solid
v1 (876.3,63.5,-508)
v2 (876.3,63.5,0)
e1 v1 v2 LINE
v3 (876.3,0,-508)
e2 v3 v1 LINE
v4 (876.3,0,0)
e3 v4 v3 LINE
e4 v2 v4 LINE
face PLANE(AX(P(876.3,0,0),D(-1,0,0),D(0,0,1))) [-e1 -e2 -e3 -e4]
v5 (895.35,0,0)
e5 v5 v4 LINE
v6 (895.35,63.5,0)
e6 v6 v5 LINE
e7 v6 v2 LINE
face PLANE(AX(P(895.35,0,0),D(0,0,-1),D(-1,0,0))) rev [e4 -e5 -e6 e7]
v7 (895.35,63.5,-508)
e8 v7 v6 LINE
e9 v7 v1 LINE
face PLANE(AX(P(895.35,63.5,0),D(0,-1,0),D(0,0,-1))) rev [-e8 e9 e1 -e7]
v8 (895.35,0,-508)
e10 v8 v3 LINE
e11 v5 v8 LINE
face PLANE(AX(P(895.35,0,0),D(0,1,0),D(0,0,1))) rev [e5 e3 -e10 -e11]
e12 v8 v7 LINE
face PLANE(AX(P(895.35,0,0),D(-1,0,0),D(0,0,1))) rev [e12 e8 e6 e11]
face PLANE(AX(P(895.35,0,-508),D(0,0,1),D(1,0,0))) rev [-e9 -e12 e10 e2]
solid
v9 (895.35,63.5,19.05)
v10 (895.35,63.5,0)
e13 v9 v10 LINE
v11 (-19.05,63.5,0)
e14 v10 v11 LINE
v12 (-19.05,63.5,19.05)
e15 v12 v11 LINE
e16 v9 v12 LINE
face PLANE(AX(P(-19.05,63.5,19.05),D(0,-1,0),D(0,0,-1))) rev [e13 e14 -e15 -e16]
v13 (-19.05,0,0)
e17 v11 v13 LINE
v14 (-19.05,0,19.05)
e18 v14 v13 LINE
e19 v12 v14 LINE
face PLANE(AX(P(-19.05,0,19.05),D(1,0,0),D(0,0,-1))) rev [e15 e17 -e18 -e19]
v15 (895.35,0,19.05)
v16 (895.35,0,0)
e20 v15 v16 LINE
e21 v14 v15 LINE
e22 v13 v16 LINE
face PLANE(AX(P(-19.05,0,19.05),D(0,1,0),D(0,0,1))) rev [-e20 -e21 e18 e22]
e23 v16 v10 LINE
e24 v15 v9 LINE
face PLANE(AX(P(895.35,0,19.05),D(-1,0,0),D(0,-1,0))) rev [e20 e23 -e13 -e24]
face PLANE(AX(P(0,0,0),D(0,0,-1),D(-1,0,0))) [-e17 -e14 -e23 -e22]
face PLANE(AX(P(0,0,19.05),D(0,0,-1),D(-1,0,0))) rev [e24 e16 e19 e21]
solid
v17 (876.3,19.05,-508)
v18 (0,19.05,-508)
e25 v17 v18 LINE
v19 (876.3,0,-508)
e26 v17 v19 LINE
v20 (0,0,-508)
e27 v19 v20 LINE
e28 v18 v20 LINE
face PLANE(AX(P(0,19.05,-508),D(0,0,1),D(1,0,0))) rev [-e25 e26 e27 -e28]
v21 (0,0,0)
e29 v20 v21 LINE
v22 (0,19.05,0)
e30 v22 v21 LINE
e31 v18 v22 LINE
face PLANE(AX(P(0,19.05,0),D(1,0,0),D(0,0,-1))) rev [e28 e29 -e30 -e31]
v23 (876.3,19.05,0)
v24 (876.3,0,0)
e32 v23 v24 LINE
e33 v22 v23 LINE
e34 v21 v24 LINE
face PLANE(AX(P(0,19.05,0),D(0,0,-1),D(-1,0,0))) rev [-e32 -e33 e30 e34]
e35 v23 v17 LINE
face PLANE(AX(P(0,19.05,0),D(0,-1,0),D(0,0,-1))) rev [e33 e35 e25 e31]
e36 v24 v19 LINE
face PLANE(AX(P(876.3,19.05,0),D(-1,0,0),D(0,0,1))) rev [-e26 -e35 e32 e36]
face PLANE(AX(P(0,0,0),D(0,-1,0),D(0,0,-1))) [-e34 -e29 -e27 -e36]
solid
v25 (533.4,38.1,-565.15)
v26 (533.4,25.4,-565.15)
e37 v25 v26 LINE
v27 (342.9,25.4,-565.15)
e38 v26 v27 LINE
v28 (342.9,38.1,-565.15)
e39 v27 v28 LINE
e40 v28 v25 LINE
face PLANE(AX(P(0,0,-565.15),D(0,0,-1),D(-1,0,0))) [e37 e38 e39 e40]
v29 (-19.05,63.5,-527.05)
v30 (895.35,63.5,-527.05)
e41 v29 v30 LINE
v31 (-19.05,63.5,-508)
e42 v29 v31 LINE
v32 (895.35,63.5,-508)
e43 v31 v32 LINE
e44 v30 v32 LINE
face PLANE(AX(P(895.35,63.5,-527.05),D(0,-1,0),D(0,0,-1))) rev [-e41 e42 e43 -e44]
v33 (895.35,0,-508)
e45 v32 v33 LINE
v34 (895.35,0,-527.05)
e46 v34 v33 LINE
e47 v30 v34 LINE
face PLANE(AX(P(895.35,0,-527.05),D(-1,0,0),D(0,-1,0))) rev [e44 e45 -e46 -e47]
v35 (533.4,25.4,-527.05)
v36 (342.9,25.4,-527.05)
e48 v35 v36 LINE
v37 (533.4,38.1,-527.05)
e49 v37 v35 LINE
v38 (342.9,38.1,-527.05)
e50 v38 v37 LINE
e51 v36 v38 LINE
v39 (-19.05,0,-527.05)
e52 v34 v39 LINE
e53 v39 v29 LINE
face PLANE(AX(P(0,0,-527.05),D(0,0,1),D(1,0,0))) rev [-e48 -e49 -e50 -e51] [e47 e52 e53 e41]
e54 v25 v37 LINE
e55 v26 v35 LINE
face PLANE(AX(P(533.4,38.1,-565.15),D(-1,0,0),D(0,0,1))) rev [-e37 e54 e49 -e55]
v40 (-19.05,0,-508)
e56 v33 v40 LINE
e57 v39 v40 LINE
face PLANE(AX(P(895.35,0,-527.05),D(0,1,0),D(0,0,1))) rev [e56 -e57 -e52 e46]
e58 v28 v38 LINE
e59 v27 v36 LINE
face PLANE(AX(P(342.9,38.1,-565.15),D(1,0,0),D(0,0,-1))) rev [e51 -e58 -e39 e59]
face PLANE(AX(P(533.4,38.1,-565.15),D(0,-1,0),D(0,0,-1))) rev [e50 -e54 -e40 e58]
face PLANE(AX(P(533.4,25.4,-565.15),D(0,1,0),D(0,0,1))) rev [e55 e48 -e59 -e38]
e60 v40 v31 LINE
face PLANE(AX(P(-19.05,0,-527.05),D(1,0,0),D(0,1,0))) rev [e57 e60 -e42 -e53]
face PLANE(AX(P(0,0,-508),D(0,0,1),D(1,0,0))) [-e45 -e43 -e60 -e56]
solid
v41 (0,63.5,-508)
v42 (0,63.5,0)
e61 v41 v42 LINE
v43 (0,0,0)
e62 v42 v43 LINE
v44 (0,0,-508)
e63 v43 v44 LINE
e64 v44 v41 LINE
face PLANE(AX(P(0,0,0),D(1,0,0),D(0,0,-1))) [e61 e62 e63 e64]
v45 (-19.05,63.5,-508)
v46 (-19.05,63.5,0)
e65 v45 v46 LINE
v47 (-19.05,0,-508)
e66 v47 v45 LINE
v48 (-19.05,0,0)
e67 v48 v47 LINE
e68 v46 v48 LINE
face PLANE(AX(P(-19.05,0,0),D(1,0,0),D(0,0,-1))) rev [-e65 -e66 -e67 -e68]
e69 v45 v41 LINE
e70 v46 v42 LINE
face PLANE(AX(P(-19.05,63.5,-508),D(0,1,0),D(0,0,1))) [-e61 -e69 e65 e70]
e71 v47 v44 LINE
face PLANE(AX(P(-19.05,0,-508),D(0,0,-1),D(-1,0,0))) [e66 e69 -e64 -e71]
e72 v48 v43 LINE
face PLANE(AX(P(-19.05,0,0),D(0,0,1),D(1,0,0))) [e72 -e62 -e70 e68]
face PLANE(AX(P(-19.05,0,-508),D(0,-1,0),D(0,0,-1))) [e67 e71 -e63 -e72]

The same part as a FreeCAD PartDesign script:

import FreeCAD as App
import Part
import Sketcher
Q = App.Units.Quantity

doc = App.newDocument("Part")
body = doc.addObject("PartDesign::Body", "Body")

# Sketch on XZ plane
sketch1 = body.newObject("Sketcher::SketchObject", "Sketch")
sketch1.AttachmentSupport = (doc.getObject("XZ_Plane"), [""])
sketch1.MapMode = "FlatFace"
sketch1.addGeometry(Part.LineSegment(App.Vector(0, -508, 0), App.Vector(0, 0, 0)), False)
sketch1.addGeometry(Part.LineSegment(App.Vector(0, 0, 0), App.Vector(876, 0, 0)), False)
sketch1.addGeometry(Part.LineSegment(App.Vector(876, 0, 0), App.Vector(876, -508, 0)), False)
sketch1.addGeometry(Part.LineSegment(App.Vector(876, -508, 0), App.Vector(0, -508, 0)), False)
sketch1.addConstraint(Sketcher.Constraint("Coincident", 0, 2, 1, 1))
sketch1.addConstraint(Sketcher.Constraint("Coincident", 1, 2, 2, 1))
sketch1.addConstraint(Sketcher.Constraint("Coincident", 2, 2, 3, 1))
sketch1.addConstraint(Sketcher.Constraint("Coincident", 3, 2, 0, 1))
sketch1.addConstraint(Sketcher.Constraint("Vertical", 0))
sketch1.addConstraint(Sketcher.Constraint("Horizontal", 1))
sketch1.addConstraint(Sketcher.Constraint("Vertical", 2))
sketch1.addConstraint(Sketcher.Constraint("Horizontal", 3))
sketch1.addConstraint(Sketcher.Constraint("Coincident", 0, 2, -1, 1))
sketch1.addConstraint(Sketcher.Constraint("DistanceY", 0, 1, 0, 2, Q("20 in")))
sketch1.addConstraint(Sketcher.Constraint("DistanceX", 1, 1, 1, 2, Q("34.5 in")))
pad1 = body.newObject("PartDesign::Pad", "Pad")
pad1.Profile = sketch1
pad1.Length = Q("0.75 in")
pad1.Reversed = True
body2 = doc.addObject("PartDesign::Body", "Body001")

# Sketch on XY plane
sketch2 = body2.newObject("Sketcher::SketchObject", "Sketch001")
sketch2.AttachmentSupport = (doc.getObject("XY_Plane001"), [""])
sketch2.MapMode = "FlatFace"
sketch2.addGeometry(Part.LineSegment(App.Vector(-19, 64, 0), App.Vector(-19, 0, 0)), False)
sketch2.addGeometry(Part.LineSegment(App.Vector(-19, 0, 0), App.Vector(895, 0, 0)), False)
sketch2.addGeometry(Part.LineSegment(App.Vector(895, 0, 0), App.Vector(895, 64, 0)), False)
sketch2.addGeometry(Part.LineSegment(App.Vector(895, 64, 0), App.Vector(-19, 64, 0)), False)
sketch2.addConstraint(Sketcher.Constraint("Coincident", 0, 2, 1, 1))
sketch2.addConstraint(Sketcher.Constraint("Coincident", 1, 2, 2, 1))
sketch2.addConstraint(Sketcher.Constraint("Coincident", 2, 2, 3, 1))
sketch2.addConstraint(Sketcher.Constraint("Coincident", 3, 2, 0, 1))
sketch2.addConstraint(Sketcher.Constraint("Vertical", 0))
sketch2.addConstraint(Sketcher.Constraint("Horizontal", 1))
sketch2.addConstraint(Sketcher.Constraint("Vertical", 2))
sketch2.addConstraint(Sketcher.Constraint("Horizontal", 3))
sketch2.addConstraint(Sketcher.Constraint("PointOnObject", 0, 2, -1))
sketch2.addConstraint(Sketcher.Constraint("DistanceX", 1, 1, 1, 2, Q("36 in")))
sketch2.addConstraint(Sketcher.Constraint("DistanceY", 0, 2, 0, 1, Q("2.5 in")))
sketch2.addConstraint(Sketcher.Constraint("DistanceX", 0, 2, -1, 1, Q("0.75 in")))
pad2 = body2.newObject("PartDesign::Pad", "Pad001")
pad2.Profile = sketch2
pad2.Length = Q("0.75 in")
body3 = doc.addObject("PartDesign::Body", "Body002")

# Sketch on XY plane
sketch3 = body3.newObject("Sketcher::SketchObject", "Sketch002")
sketch3.AttachmentSupport = (doc.getObject("XY_Plane002"), [""])
sketch3.MapMode = "FlatFace"
sketch3.AttachmentOffset = App.Placement(App.Vector(0, 0, -20 * 25.4), App.Rotation())
sketch3.addGeometry(Part.LineSegment(App.Vector(895, 64, 0), App.Vector(895, 0, 0)), False)
sketch3.addGeometry(Part.LineSegment(App.Vector(895, 0, 0), App.Vector(-19, 0, 0)), False)
sketch3.addGeometry(Part.LineSegment(App.Vector(-19, 0, 0), App.Vector(-19, 64, 0)), False)
sketch3.addGeometry(Part.LineSegment(App.Vector(-19, 64, 0), App.Vector(895, 64, 0)), False)
sketch3.addConstraint(Sketcher.Constraint("Coincident", 0, 2, 1, 1))
sketch3.addConstraint(Sketcher.Constraint("Coincident", 1, 2, 2, 1))
sketch3.addConstraint(Sketcher.Constraint("Coincident", 2, 2, 3, 1))
sketch3.addConstraint(Sketcher.Constraint("Coincident", 3, 2, 0, 1))
sketch3.addConstraint(Sketcher.Constraint("Vertical", 0))
sketch3.addConstraint(Sketcher.Constraint("Horizontal", 1))
sketch3.addConstraint(Sketcher.Constraint("Vertical", 2))
sketch3.addConstraint(Sketcher.Constraint("Horizontal", 3))
sketch3.addConstraint(Sketcher.Constraint("PointOnObject", 0, 2, -1))
sketch3.addConstraint(Sketcher.Constraint("DistanceX", 1, 2, 1, 1, Q("36 in")))
sketch3.addConstraint(Sketcher.Constraint("DistanceY", 0, 2, 0, 1, Q("2.5 in")))
sketch3.addConstraint(Sketcher.Constraint("DistanceX", -1, 1, 0, 2, Q("35.25 in")))
pad3 = body3.newObject("PartDesign::Pad", "Pad002")
pad3.Profile = sketch3
pad3.Length = Q("0.75 in")
pad3.Reversed = True

# Sketch on XY plane
sketch4 = body3.newObject("Sketcher::SketchObject", "Sketch003")
sketch4.AttachmentSupport = (doc.getObject("XY_Plane002"), [""])
sketch4.MapMode = "FlatFace"
sketch4.AttachmentOffset = App.Placement(App.Vector(0, 0, -20.75 * 25.4), App.Rotation())
sketch4.addGeometry(Part.LineSegment(App.Vector(533, 38, 0), App.Vector(533, 25, 0)), False)
sketch4.addGeometry(Part.LineSegment(App.Vector(533, 25, 0), App.Vector(343, 25, 0)), False)
sketch4.addGeometry(Part.LineSegment(App.Vector(343, 25, 0), App.Vector(343, 38, 0)), False)
sketch4.addGeometry(Part.LineSegment(App.Vector(343, 38, 0), App.Vector(533, 38, 0)), False)
sketch4.addConstraint(Sketcher.Constraint("Coincident", 0, 2, 1, 1))
sketch4.addConstraint(Sketcher.Constraint("Coincident", 1, 2, 2, 1))
sketch4.addConstraint(Sketcher.Constraint("Coincident", 2, 2, 3, 1))
sketch4.addConstraint(Sketcher.Constraint("Coincident", 3, 2, 0, 1))
sketch4.addConstraint(Sketcher.Constraint("Vertical", 0))
sketch4.addConstraint(Sketcher.Constraint("Horizontal", 1))
sketch4.addConstraint(Sketcher.Constraint("Vertical", 2))
sketch4.addConstraint(Sketcher.Constraint("Horizontal", 3))
sketch4.addConstraint(Sketcher.Constraint("DistanceX", 1, 2, 1, 1, Q("7.5 in")))
sketch4.addConstraint(Sketcher.Constraint("DistanceY", 0, 2, 0, 1, Q("0.5 in")))
sketch4.addConstraint(Sketcher.Constraint("DistanceX", -1, 1, 0, 2, Q("21 in")))
sketch4.addConstraint(Sketcher.Constraint("DistanceY", -1, 1, 0, 2, Q("1 in")))
pad4 = body3.newObject("PartDesign::Pad", "Pad003")
pad4.Profile = sketch4
pad4.Length = Q("1.5 in")
pad4.Reversed = True
body4 = doc.addObject("PartDesign::Body", "Body003")

# Sketch on YZ plane
sketch5 = body4.newObject("Sketcher::SketchObject", "Sketch004")
sketch5.AttachmentSupport = (doc.getObject("YZ_Plane003"), [""])
sketch5.MapMode = "FlatFace"
sketch5.addGeometry(Part.LineSegment(App.Vector(64, 0, 0), App.Vector(0, 0, 0)), False)
sketch5.addGeometry(Part.LineSegment(App.Vector(0, 0, 0), App.Vector(0, -508, 0)), False)
sketch5.addGeometry(Part.LineSegment(App.Vector(0, -508, 0), App.Vector(64, -508, 0)), False)
sketch5.addGeometry(Part.LineSegment(App.Vector(64, -508, 0), App.Vector(64, 0, 0)), False)
sketch5.addConstraint(Sketcher.Constraint("Coincident", 0, 2, 1, 1))
sketch5.addConstraint(Sketcher.Constraint("Coincident", 1, 2, 2, 1))
sketch5.addConstraint(Sketcher.Constraint("Coincident", 2, 2, 3, 1))
sketch5.addConstraint(Sketcher.Constraint("Coincident", 3, 2, 0, 1))
sketch5.addConstraint(Sketcher.Constraint("Horizontal", 0))
sketch5.addConstraint(Sketcher.Constraint("Vertical", 1))
sketch5.addConstraint(Sketcher.Constraint("Horizontal", 2))
sketch5.addConstraint(Sketcher.Constraint("Vertical", 3))
sketch5.addConstraint(Sketcher.Constraint("Coincident", 0, 2, -1, 1))
sketch5.addConstraint(Sketcher.Constraint("DistanceY", 1, 2, 1, 1, Q("20 in")))
sketch5.addConstraint(Sketcher.Constraint("DistanceX", 0, 2, 0, 1, Q("2.5 in")))
pad5 = body4.newObject("PartDesign::Pad", "Pad004")
pad5.Profile = sketch5
pad5.Length = Q("0.75 in")
pad5.Reversed = True
body5 = doc.addObject("PartDesign::Body", "Body004")

# Sketch on YZ plane
sketch6 = body5.newObject("Sketcher::SketchObject", "Sketch005")
sketch6.AttachmentSupport = (doc.getObject("YZ_Plane004"), [""])
sketch6.MapMode = "FlatFace"
sketch6.AttachmentOffset = App.Placement(App.Vector(0, 0, 34.5 * 25.4), App.Rotation())
sketch6.addGeometry(Part.LineSegment(App.Vector(64, 0, 0), App.Vector(0, 0, 0)), False)
sketch6.addGeometry(Part.LineSegment(App.Vector(0, 0, 0), App.Vector(0, -508, 0)), False)
sketch6.addGeometry(Part.LineSegment(App.Vector(0, -508, 0), App.Vector(64, -508, 0)), False)
sketch6.addGeometry(Part.LineSegment(App.Vector(64, -508, 0), App.Vector(64, 0, 0)), False)
sketch6.addConstraint(Sketcher.Constraint("Coincident", 0, 2, 1, 1))
sketch6.addConstraint(Sketcher.Constraint("Coincident", 1, 2, 2, 1))
sketch6.addConstraint(Sketcher.Constraint("Coincident", 2, 2, 3, 1))
sketch6.addConstraint(Sketcher.Constraint("Coincident", 3, 2, 0, 1))
sketch6.addConstraint(Sketcher.Constraint("Horizontal", 0))
sketch6.addConstraint(Sketcher.Constraint("Vertical", 1))
sketch6.addConstraint(Sketcher.Constraint("Horizontal", 2))
sketch6.addConstraint(Sketcher.Constraint("Vertical", 3))
sketch6.addConstraint(Sketcher.Constraint("Coincident", 0, 2, -1, 1))
sketch6.addConstraint(Sketcher.Constraint("DistanceY", 1, 2, 1, 1, Q("20 in")))
sketch6.addConstraint(Sketcher.Constraint("DistanceX", 0, 2, 0, 1, Q("2.5 in")))
pad6 = body5.newObject("PartDesign::Pad", "Pad005")
pad6.Profile = sketch6
pad6.Length = Q("0.75 in")

doc.recompute()
